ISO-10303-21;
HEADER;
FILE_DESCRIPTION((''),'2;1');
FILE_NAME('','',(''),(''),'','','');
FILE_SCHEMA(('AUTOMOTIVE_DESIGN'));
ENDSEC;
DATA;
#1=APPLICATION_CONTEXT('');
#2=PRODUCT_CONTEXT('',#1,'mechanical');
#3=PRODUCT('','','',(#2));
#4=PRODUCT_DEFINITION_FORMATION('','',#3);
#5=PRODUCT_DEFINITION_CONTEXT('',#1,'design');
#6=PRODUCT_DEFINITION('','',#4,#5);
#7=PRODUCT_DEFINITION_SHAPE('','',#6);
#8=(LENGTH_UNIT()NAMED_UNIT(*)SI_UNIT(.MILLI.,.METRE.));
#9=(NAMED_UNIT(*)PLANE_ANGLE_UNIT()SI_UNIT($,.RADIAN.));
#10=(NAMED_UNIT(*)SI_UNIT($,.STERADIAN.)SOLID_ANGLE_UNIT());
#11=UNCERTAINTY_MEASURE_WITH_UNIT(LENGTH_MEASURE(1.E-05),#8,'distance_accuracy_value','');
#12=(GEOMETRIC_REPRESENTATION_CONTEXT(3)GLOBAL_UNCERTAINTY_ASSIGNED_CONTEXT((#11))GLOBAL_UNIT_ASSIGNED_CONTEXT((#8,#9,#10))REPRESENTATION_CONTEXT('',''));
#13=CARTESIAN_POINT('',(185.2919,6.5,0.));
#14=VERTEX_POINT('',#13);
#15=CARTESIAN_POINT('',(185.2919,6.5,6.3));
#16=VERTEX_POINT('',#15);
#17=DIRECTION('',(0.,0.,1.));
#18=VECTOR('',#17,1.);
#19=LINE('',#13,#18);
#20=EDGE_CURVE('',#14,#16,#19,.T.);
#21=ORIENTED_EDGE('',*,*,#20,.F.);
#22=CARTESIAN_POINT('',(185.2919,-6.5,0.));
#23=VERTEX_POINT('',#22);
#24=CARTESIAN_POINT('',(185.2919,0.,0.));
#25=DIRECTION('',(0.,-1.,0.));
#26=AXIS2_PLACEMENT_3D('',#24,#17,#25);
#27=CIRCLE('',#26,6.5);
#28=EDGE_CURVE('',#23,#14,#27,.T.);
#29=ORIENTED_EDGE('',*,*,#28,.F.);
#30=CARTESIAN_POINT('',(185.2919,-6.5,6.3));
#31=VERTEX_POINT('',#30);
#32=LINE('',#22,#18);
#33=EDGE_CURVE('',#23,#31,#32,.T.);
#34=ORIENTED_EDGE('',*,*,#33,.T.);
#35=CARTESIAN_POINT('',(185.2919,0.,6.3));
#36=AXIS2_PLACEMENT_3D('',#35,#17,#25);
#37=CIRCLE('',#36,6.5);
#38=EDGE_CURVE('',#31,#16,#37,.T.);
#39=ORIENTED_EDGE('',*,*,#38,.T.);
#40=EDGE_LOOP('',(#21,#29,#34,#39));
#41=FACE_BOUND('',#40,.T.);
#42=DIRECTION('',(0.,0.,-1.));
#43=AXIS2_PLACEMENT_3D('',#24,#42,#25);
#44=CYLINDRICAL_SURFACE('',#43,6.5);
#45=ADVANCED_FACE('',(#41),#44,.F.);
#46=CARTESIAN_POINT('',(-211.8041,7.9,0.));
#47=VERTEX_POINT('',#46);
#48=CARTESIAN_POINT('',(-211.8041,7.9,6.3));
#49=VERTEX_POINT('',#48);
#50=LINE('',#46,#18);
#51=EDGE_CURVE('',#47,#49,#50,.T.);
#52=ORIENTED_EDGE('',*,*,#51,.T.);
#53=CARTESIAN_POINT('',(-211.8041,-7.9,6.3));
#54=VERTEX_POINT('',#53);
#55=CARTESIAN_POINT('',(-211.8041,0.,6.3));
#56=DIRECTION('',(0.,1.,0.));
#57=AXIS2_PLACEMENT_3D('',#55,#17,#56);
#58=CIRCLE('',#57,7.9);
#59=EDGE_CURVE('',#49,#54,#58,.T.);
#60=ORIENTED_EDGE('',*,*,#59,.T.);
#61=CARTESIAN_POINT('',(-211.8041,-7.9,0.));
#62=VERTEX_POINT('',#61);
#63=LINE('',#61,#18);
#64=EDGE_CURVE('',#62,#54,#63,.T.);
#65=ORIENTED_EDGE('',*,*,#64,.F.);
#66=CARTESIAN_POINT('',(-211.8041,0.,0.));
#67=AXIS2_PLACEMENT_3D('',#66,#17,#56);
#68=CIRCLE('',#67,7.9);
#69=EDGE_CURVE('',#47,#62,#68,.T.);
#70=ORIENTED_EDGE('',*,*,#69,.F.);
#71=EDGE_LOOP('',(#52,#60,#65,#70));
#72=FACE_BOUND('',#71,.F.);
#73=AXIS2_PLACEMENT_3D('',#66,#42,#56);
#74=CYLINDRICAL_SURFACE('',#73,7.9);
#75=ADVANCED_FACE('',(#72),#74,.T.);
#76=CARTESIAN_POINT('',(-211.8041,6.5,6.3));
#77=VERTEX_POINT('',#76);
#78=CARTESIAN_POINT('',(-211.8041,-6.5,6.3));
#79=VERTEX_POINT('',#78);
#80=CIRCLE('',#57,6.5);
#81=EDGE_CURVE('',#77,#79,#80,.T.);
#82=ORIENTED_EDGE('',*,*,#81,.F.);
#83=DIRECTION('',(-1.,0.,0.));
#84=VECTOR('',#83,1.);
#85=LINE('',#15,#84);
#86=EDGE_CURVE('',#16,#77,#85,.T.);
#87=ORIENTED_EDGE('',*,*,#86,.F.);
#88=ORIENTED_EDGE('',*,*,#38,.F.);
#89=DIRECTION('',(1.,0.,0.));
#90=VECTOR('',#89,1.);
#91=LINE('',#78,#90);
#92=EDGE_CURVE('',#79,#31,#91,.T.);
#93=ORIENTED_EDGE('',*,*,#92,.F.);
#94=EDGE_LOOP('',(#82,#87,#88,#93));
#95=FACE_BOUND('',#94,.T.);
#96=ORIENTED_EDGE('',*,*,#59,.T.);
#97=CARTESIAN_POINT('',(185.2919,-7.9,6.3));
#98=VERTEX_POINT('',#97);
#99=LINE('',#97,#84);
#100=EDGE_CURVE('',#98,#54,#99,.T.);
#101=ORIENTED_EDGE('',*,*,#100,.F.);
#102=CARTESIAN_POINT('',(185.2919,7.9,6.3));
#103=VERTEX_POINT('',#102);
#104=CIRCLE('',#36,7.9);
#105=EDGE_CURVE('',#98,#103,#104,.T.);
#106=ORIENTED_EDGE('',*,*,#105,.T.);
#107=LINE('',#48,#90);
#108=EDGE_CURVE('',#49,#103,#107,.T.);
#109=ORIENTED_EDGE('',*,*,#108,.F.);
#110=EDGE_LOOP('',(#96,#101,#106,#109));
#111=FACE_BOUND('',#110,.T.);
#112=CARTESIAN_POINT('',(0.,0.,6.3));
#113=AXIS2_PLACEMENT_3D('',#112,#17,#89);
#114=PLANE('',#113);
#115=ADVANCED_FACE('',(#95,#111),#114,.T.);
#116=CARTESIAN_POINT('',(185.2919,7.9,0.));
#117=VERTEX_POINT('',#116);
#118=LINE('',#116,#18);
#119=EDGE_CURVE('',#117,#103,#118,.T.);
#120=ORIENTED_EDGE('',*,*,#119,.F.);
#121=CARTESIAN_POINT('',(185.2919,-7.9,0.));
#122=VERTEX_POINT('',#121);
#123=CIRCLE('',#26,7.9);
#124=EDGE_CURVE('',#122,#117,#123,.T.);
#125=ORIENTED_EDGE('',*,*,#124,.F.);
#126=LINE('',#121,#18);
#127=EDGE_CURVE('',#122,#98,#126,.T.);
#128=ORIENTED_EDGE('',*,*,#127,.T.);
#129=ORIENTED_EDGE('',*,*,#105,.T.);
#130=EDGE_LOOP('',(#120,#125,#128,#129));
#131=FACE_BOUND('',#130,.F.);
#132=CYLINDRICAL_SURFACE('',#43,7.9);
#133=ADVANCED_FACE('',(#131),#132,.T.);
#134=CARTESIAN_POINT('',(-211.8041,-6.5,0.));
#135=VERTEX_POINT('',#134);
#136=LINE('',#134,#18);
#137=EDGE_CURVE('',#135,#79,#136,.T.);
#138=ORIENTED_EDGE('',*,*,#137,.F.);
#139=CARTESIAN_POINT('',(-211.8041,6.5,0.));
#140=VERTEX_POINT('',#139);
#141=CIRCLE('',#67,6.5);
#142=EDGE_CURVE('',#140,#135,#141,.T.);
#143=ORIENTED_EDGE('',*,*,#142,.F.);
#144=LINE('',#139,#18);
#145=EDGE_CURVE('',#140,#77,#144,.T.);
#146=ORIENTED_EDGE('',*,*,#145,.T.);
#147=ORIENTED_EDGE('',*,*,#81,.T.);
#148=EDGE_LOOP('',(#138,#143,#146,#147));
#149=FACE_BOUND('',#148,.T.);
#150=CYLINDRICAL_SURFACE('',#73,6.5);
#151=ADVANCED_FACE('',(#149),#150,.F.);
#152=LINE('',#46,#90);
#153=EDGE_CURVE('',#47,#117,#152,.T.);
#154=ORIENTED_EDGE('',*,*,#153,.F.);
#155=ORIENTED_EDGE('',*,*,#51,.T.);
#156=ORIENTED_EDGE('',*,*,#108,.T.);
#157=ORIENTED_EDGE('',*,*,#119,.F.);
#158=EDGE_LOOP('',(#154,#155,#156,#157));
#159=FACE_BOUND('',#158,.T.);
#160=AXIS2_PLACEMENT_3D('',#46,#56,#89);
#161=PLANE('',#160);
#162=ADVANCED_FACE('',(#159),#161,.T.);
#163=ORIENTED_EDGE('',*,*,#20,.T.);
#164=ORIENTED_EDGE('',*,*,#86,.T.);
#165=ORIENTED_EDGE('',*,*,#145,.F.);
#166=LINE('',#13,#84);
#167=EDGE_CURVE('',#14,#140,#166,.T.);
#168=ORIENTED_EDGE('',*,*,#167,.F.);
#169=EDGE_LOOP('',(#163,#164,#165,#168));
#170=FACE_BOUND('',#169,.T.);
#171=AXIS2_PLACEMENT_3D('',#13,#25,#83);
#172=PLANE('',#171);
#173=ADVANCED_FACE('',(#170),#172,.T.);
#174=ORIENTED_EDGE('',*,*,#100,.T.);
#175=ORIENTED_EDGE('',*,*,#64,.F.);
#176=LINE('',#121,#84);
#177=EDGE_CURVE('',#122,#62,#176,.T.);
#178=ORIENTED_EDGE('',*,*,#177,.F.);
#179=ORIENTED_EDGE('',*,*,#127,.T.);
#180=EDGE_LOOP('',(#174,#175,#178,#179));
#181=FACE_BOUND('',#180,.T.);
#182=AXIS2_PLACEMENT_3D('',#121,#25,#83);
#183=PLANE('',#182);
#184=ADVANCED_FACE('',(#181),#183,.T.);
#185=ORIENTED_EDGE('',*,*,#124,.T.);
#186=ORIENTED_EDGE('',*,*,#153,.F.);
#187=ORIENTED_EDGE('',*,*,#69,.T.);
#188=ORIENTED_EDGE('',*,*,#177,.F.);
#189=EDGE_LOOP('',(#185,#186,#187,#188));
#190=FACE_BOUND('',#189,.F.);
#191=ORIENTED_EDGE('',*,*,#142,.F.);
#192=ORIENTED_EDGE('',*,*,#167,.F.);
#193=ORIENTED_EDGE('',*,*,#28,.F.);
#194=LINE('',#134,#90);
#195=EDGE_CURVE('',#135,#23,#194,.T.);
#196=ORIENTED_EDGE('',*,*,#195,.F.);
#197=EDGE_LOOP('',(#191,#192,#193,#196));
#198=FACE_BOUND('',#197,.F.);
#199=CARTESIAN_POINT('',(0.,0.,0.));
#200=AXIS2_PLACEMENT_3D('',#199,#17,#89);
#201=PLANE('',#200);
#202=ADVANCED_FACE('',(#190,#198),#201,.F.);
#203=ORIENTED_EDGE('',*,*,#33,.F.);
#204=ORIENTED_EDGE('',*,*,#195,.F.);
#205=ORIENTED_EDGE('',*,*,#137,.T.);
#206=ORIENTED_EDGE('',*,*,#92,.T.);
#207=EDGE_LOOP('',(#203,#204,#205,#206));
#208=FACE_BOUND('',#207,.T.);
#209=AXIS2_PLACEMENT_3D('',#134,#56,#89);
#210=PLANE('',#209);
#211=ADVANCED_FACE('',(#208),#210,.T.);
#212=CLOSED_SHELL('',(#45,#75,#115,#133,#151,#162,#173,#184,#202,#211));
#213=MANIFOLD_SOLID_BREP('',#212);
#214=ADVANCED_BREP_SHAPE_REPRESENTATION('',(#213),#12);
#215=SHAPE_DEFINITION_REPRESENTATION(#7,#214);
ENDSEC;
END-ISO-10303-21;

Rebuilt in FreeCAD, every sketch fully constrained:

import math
import FreeCAD as App
import Part
import Sketcher

V = App.Vector

doc = App.newDocument("Part")
body = doc.addObject("PartDesign::Body", "Body")

sketch1 = body.newObject("Sketcher::SketchObject", "Sketch")
sketch1.AttachmentSupport = (doc.getObject("XY_Plane"), [""])
sketch1.MapMode = "FlatFace"
sketch1.addGeometry([
    Part.LineSegment(V(185, 8, 0), V(-212, 8, 0)),
    Part.ArcOfCircle(Part.Circle(V(-212, 0, 0), V(0, 0, 1), 8), math.radians(90), math.radians(270)),
    Part.LineSegment(V(-212, -8, 0), V(185, -8, 0)),
    Part.ArcOfCircle(Part.Circle(V(185, 0, 0), V(0, 0, 1), 8), math.radians(-90), math.radians(90)),
    Part.LineSegment(V(185, -6, 0), V(-212, -6, 0)),
    Part.ArcOfCircle(Part.Circle(V(-212, 0, 0), V(0, 0, 1), 6), math.radians(90), math.radians(270)),
    Part.LineSegment(V(-212, 6, 0), V(185, 6, 0)),
    Part.ArcOfCircle(Part.Circle(V(185, 0, 0), V(0, 0, 1), 6), math.radians(-90), math.radians(90)),
], False)
sketch1.addConstraint([
    Sketcher.Constraint("Tangent", 0, 2, 1, 1),
    Sketcher.Constraint("Tangent", 1, 2, 2, 1),
    Sketcher.Constraint("Tangent", 2, 2, 3, 1),
    Sketcher.Constraint("Tangent", 3, 2, 0, 1),
    Sketcher.Constraint("Tangent", 4, 2, 5, 2),
    Sketcher.Constraint("Tangent", 5, 1, 6, 1),
    Sketcher.Constraint("Tangent", 6, 2, 7, 2),
    Sketcher.Constraint("Tangent", 7, 1, 4, 1),
    Sketcher.Constraint("Horizontal", 0),
    Sketcher.Constraint("Horizontal", 2),
    Sketcher.Constraint("Horizontal", 4),
    Sketcher.Constraint("Horizontal", 6),
    Sketcher.Constraint("Coincident", 5, 3, 1, 3),
    Sketcher.Constraint("PointOnObject", 1, 3, -1),
    Sketcher.Constraint("Vertical", 7, 3, 2, 2),
    Sketcher.Constraint("Radius", 5, 6.5),
    Sketcher.Constraint("Radius", 1, 7.9),
    Sketcher.Constraint("DistanceX", 0, 2, 0, 1, 397.096),
    Sketcher.Constraint("DistanceX", 1, 3, -1, 1, 211.804),
])
pad1 = body.newObject("PartDesign::Pad", "Pad")
pad1.Profile = sketch1
pad1.Length = 6.3

doc.recompute()
